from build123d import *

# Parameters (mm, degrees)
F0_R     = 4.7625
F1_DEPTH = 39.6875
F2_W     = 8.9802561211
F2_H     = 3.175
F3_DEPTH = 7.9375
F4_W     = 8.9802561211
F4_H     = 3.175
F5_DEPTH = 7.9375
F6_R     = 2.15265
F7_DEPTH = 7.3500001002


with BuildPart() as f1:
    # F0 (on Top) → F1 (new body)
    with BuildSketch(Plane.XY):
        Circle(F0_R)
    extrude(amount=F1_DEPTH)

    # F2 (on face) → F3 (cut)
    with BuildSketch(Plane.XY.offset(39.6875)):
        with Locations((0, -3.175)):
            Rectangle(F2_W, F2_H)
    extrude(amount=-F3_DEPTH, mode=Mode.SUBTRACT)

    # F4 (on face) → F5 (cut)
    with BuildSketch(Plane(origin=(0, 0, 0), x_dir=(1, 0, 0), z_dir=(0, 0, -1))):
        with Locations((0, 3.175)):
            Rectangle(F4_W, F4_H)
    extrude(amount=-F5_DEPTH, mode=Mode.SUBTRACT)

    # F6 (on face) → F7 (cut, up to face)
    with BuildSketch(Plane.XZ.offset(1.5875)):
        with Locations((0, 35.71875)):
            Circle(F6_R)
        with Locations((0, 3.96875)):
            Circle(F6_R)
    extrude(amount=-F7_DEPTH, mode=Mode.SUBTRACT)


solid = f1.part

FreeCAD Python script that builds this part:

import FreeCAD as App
import Part
import Sketcher

V = App.Vector
Q = App.Units.Quantity

doc = App.newDocument("Part")
body = doc.addObject("PartDesign::Body", "Body")

# Sketch on XY plane
sketch1 = body.newObject("Sketcher::SketchObject", "Sketch")
sketch1.AttachmentSupport = (doc.getObject("XY_Plane"), [""])
sketch1.MapMode = "FlatFace"
sketch1.addGeometry(Part.Circle(V(0, 0, 0), V(0, 0, 1), 4.8), False)
sketch1.addConstraint([
    Sketcher.Constraint("Coincident", 0, 3, -1, 1),
    Sketcher.Constraint("Diameter", 0, Q("0.375 in")),
])
pad1 = body.newObject("PartDesign::Pad", "Pad")
pad1.Profile = sketch1
pad1.Length = Q("1.5625 in")

# Sketch on XY plane
sketch2 = body.newObject("Sketcher::SketchObject", "Sketch001")
sketch2.AttachmentSupport = (doc.getObject("XY_Plane"), [""])
sketch2.MapMode = "FlatFace"
sketch2.AttachmentOffset = App.Placement(V(0, 0, 1.5625 * 25.4), App.Rotation())
sketch2.addGeometry([
    Part.LineSegment(V(-4.5, -1.6, 0), V(-4.5, -4.8, 0)),
    Part.LineSegment(V(-4.5, -4.8, 0), V(4.5, -4.8, 0)),
    Part.LineSegment(V(4.5, -4.8, 0), V(4.5, -1.6, 0)),
    Part.LineSegment(V(4.5, -1.6, 0), V(-4.5, -1.6, 0)),
], False)
sketch2.addConstraint([
    Sketcher.Constraint("Coincident", 0, 2, 1, 1),
    Sketcher.Constraint("Coincident", 1, 2, 2, 1),
    Sketcher.Constraint("Coincident", 2, 2, 3, 1),
    Sketcher.Constraint("Coincident", 3, 2, 0, 1),
    Sketcher.Constraint("Vertical", 0),
    Sketcher.Constraint("Horizontal", 1),
    Sketcher.Constraint("Vertical", 2),
    Sketcher.Constraint("Horizontal", 3),
    Sketcher.Constraint("DistanceY", 0, 2, 0, 1, Q("0.125 in")),
    Sketcher.Constraint("DistanceY", 0, 2, -1, 1, Q("0.1875 in")),
    Sketcher.Constraint("DistanceX", 1, 1, 1, 2, Q("8.980256 mm")),
    Sketcher.Constraint("DistanceX", 0, 2, -1, 1, Q("4.490128 mm")),
])
pocket1 = body.newObject("PartDesign::Pocket", "Pocket")
pocket1.Profile = sketch2
pocket1.Length = Q("0.3125 in")

# Sketch on XY plane
sketch3 = body.newObject("Sketcher::SketchObject", "Sketch002")
sketch3.AttachmentSupport = (doc.getObject("XY_Plane"), [""])
sketch3.MapMode = "FlatFace"
sketch3.addGeometry([
    Part.LineSegment(V(-4.5, -4.8, 0), V(-4.5, -1.6, 0)),
    Part.LineSegment(V(-4.5, -1.6, 0), V(4.5, -1.6, 0)),
    Part.LineSegment(V(4.5, -1.6, 0), V(4.5, -4.8, 0)),
    Part.LineSegment(V(4.5, -4.8, 0), V(-4.5, -4.8, 0)),
], False)
sketch3.addConstraint([
    Sketcher.Constraint("Coincident", 0, 2, 1, 1),
    Sketcher.Constraint("Coincident", 1, 2, 2, 1),
    Sketcher.Constraint("Coincident", 2, 2, 3, 1),
    Sketcher.Constraint("Coincident", 3, 2, 0, 1),
    Sketcher.Constraint("Vertical", 0),
    Sketcher.Constraint("Horizontal", 1),
    Sketcher.Constraint("Vertical", 2),
    Sketcher.Constraint("Horizontal", 3),
    Sketcher.Constraint("DistanceY", 0, 1, 0, 2, Q("0.125 in")),
    Sketcher.Constraint("DistanceY", 0, 2, -1, 1, Q("0.0625 in")),
    Sketcher.Constraint("DistanceX", 1, 1, 1, 2, Q("8.980256 mm")),
    Sketcher.Constraint("DistanceX", 0, 2, -1, 1, Q("4.490128 mm")),
])
pocket2 = body.newObject("PartDesign::Pocket", "Pocket001")
pocket2.Profile = sketch3
pocket2.Length = Q("0.3125 in")
pocket2.Reversed = True

# Sketch on XZ plane
sketch4 = body.newObject("Sketcher::SketchObject", "Sketch003")
sketch4.AttachmentSupport = (doc.getObject("XZ_Plane"), [""])
sketch4.MapMode = "FlatFace"
sketch4.AttachmentOffset = App.Placement(V(0, 0, 0.0625 * 25.4), App.Rotation())
sketch4.addGeometry([
    Part.Circle(V(0, 35.7, 0), V(0, 0, 1), 2.2),
    Part.Circle(V(0, 4, 0), V(0, 0, 1), 2.2),
], False)
sketch4.addConstraint([
    Sketcher.Constraint("Equal", 0, 1),
    Sketcher.Constraint("PointOnObject", 0, 3, -2),
    Sketcher.Constraint("PointOnObject", 1, 3, -2),
    Sketcher.Constraint("Diameter", 0, Q("0.1695 in")),
    Sketcher.Constraint("DistanceY", 1, 3, 0, 3, Q("1.25 in")),
    Sketcher.Constraint("DistanceY", -1, 1, 0, 3, Q("1.40625 in")),
])
pocket3 = body.newObject("PartDesign::Pocket", "Pocket002")
pocket3.Profile = sketch4
pocket3.Length = 7.35

doc.recompute()
